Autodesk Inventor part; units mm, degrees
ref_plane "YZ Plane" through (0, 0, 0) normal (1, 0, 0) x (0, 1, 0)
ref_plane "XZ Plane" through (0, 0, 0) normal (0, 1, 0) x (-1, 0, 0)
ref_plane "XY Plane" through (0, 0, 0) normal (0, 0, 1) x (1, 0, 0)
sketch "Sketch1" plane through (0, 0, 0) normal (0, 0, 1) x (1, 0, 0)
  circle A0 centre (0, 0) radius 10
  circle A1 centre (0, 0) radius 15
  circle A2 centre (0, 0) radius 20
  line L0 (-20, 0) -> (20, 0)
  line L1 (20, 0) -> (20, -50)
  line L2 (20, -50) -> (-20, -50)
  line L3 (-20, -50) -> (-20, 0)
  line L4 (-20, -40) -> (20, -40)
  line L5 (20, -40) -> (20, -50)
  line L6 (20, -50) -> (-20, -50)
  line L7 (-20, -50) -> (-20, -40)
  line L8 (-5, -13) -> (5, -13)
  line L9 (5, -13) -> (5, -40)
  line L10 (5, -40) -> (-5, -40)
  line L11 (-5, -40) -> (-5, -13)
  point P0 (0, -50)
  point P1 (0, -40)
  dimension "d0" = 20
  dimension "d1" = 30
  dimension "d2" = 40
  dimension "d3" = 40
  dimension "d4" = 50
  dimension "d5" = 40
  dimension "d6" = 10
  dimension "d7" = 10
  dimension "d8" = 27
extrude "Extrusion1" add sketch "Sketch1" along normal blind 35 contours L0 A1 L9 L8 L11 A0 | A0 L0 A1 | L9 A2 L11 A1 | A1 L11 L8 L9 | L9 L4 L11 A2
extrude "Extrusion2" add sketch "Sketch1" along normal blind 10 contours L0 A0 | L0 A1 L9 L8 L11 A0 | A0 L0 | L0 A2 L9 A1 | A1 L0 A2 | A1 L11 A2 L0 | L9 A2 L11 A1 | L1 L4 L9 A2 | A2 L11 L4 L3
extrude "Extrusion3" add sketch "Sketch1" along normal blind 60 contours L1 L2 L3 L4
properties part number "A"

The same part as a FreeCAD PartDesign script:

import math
import FreeCAD as App
import Part
import Sketcher
Q = App.Units.Quantity

doc = App.newDocument("Part")
params = doc.addObject("Spreadsheet::Sheet", "Params")
for row, (alias, value) in enumerate([
    ("sketch1_diameter", "20 mm"),
    ("sketch1_radius", "15 mm"),
    ("sketch1_width", "10 mm"),
    ("pad1_length", "35 mm"),
    ("sketch2_radius", "20 mm"),
    ("sketch2_radius2", "10 mm"),
    ("sketch2_radius3", "15 mm"),
    ("sketch2_width", "10 mm"),
    ("sketch2_height", "40 mm"),
    ("pad2_length", "10 mm"),
    ("sketch3_width", "40 mm"),
    ("sketch3_height", "10 mm"),
    ("pad3_length", "60 mm"),
], start=1):
    params.set(f"A{row}", alias)
    params.set(f"B{row}", "=" + value)
    params.setAlias(f"B{row}", alias)

body = doc.addObject("PartDesign::Body", "Body")

sketch1 = body.newObject("Sketcher::SketchObject", "Sketch")
sketch1.AttachmentSupport = (doc.getObject("XY_Plane"), [""])
sketch1.MapMode = "FlatFace"
sketch1.addGeometry([
    Part.ArcOfCircle(Part.Circle(App.Vector(0, 0, 0), App.Vector(0, 0, 1), 15), math.radians(-70.528779), math.radians(250.528779)),
    Part.LineSegment(App.Vector(-5, -14.142136, 0), App.Vector(-5, -40, 0)),
    Part.LineSegment(App.Vector(-5, -40, 0), App.Vector(5, -40, 0)),
    Part.LineSegment(App.Vector(5, -40, 0), App.Vector(5, -14.142136, 0)),
    Part.Circle(App.Vector(0, 0, 0), App.Vector(0, 0, 1), 10),
], False)
sketch1.addConstraint([
    Sketcher.Constraint("Coincident", 0, 2, 1, 1),
    Sketcher.Constraint("Coincident", 1, 2, 2, 1),
    Sketcher.Constraint("Coincident", 2, 2, 3, 1),
    Sketcher.Constraint("Coincident", 3, 2, 0, 1),
    Sketcher.Constraint("Vertical", 1),
    Sketcher.Constraint("Horizontal", 2),
    Sketcher.Constraint("Vertical", 3),
    Sketcher.Constraint("Coincident", 0, 3, -1, 1),
    Sketcher.Constraint("Coincident", 4, 3, -1, 1),
    Sketcher.Constraint("Horizontal", 0, 2, 3, 2),
    Sketcher.Constraint("Diameter", 4, Q("20 mm")),
    Sketcher.Constraint("Radius", 0, Q("15 mm")),
    Sketcher.Constraint("DistanceX", 2, 1, 2, 2, Q("10 mm")),
    Sketcher.Constraint("DistanceY", 1, 2, -1, 1, Q("40 mm")),
])
sketch1.setExpression("Constraints[10]", "Params.sketch1_diameter")
sketch1.setExpression("Constraints[11]", "Params.sketch1_radius")
sketch1.setExpression("Constraints[12]", "Params.sketch1_width")
pad1 = body.newObject("PartDesign::Pad", "Pad")
pad1.Profile = sketch1
pad1.setExpression("Length", "Params.pad1_length")

sketch2 = body.newObject("Sketcher::SketchObject", "Sketch001")
sketch2.AttachmentSupport = (doc.getObject("XY_Plane"), [""])
sketch2.MapMode = "FlatFace"
sketch2.addGeometry([
    Part.ArcOfCircle(Part.Circle(App.Vector(0, 0, 0), App.Vector(0, 0, 1), 20), math.radians(0), math.radians(180)),
    Part.LineSegment(App.Vector(-20, 0, 0), App.Vector(-20, -40, 0)),
    Part.LineSegment(App.Vector(-20, -40, 0), App.Vector(-5, -40, 0)),
    Part.LineSegment(App.Vector(-5, -40, 0), App.Vector(-5, -19.364917, 0)),
    Part.ArcOfCircle(Part.Circle(App.Vector(0, 0, 0), App.Vector(0, 0, 1), 20), math.radians(-104.477512), math.radians(-75.522488)),
    Part.LineSegment(App.Vector(5, -19.364917, 0), App.Vector(5, -40, 0)),
    Part.LineSegment(App.Vector(5, -40, 0), App.Vector(20, -40, 0)),
    Part.LineSegment(App.Vector(20, -40, 0), App.Vector(20, 0, 0)),
    Part.ArcOfCircle(Part.Circle(App.Vector(0, 0, 0), App.Vector(0, 0, 1), 10), math.radians(0), math.radians(180)),
    Part.LineSegment(App.Vector(-10, 0, 0), App.Vector(-15, 0, 0)),
    Part.ArcOfCircle(Part.Circle(App.Vector(0, 0, 0), App.Vector(0, 0, 1), 15), math.radians(0), math.radians(180)),
    Part.LineSegment(App.Vector(15, 0, 0), App.Vector(10, 0, 0)),
    Part.LineSegment(App.Vector(5, -13, 0), App.Vector(5, -14.142136, 0)),
    Part.ArcOfCircle(Part.Circle(App.Vector(0, 0, 0), App.Vector(0, 0, 1), 15), math.radians(-109.471221), math.radians(-70.528779)),
    Part.LineSegment(App.Vector(-5, -14.142136, 0), App.Vector(-5, -13, 0)),
    Part.LineSegment(App.Vector(-5, -13, 0), App.Vector(5, -13, 0)),
], False)
sketch2.addConstraint([
    Sketcher.Constraint("Tangent", 0, 2, 1, 1),
    Sketcher.Constraint("Coincident", 1, 2, 2, 1),
    Sketcher.Constraint("Coincident", 2, 2, 3, 1),
    Sketcher.Constraint("Coincident", 3, 2, 4, 1),
    Sketcher.Constraint("Coincident", 4, 2, 5, 1),
    Sketcher.Constraint("Coincident", 5, 2, 6, 1),
    Sketcher.Constraint("Coincident", 6, 2, 7, 1),
    Sketcher.Constraint("Tangent", 7, 2, 0, 1),
    Sketcher.Constraint("Coincident", 8, 2, 9, 1),
    Sketcher.Constraint("Coincident", 9, 2, 10, 2),
    Sketcher.Constraint("Coincident", 10, 1, 11, 1),
    Sketcher.Constraint("Coincident", 11, 2, 8, 1),
    Sketcher.Constraint("Coincident", 12, 2, 13, 2),
    Sketcher.Constraint("Coincident", 13, 1, 14, 1),
    Sketcher.Constraint("Coincident", 14, 2, 15, 1),
    Sketcher.Constraint("Coincident", 15, 2, 12, 1),
    Sketcher.Constraint("Vertical", 1),
    Sketcher.Constraint("Horizontal", 2),
    Sketcher.Constraint("Vertical", 3),
    Sketcher.Constraint("Vertical", 5),
    Sketcher.Constraint("Horizontal", 6),
    Sketcher.Constraint("Vertical", 7),
    Sketcher.Constraint("Horizontal", 9),
    Sketcher.Constraint("Horizontal", 11),
    Sketcher.Constraint("Vertical", 12),
    Sketcher.Constraint("Vertical", 14),
    Sketcher.Constraint("Horizontal", 15),
    Sketcher.Constraint("Coincident", 0, 3, -1, 1),
    Sketcher.Constraint("Coincident", 4, 3, -1, 1),
    Sketcher.Constraint("Coincident", 8, 3, -1, 1),
    Sketcher.Constraint("Coincident", 10, 3, -1, 1),
    Sketcher.Constraint("Coincident", 13, 3, -1, 1),
    Sketcher.Constraint("Equal", 0, 4),
    Sketcher.Constraint("Equal", 10, 13),
    Sketcher.Constraint("Symmetric", 2, 2, 5, 2, -2),
    Sketcher.Constraint("PointOnObject", 8, 2, -1),
    Sketcher.Constraint("PointOnObject", 10, 1, -1),
    Sketcher.Constraint("Horizontal", 12, 2, 13, 1),
    Sketcher.Constraint("Vertical", 5, 2, 12, 2),
    Sketcher.Constraint("Radius", 0, Q("20 mm")),
    Sketcher.Constraint("Radius", 8, Q("10 mm")),
    Sketcher.Constraint("Radius", 10, Q("15 mm")),
    Sketcher.Constraint("DistanceX", 15, 1, 15, 2, Q("10 mm")),
    Sketcher.Constraint("DistanceY", 1, 2, 1, 1, Q("40 mm")),
    Sketcher.Constraint("DistanceY", 14, 2, -1, 1, Q("13 mm")),
])
sketch2.setExpression("Constraints[39]", "Params.sketch2_radius")
sketch2.setExpression("Constraints[40]", "Params.sketch2_radius2")
sketch2.setExpression("Constraints[41]", "Params.sketch2_radius3")
sketch2.setExpression("Constraints[42]", "Params.sketch2_width")
sketch2.setExpression("Constraints[43]", "Params.sketch2_height")
pad2 = body.newObject("PartDesign::Pad", "Pad001")
pad2.Profile = sketch2
pad2.setExpression("Length", "Params.pad2_length")

sketch3 = body.newObject("Sketcher::SketchObject", "Sketch002")
sketch3.AttachmentSupport = (doc.getObject("XY_Plane"), [""])
sketch3.MapMode = "FlatFace"
sketch3.addGeometry([
    Part.LineSegment(App.Vector(20, -50, 0), App.Vector(20, -40, 0)),
    Part.LineSegment(App.Vector(20, -40, 0), App.Vector(-20, -40, 0)),
    Part.LineSegment(App.Vector(-20, -40, 0), App.Vector(-20, -50, 0)),
    Part.LineSegment(App.Vector(-20, -50, 0), App.Vector(20, -50, 0)),
], False)
sketch3.addConstraint([
    Sketcher.Constraint("Coincident", 0, 2, 1, 1),
    Sketcher.Constraint("Coincident", 1, 2, 2, 1),
    Sketcher.Constraint("Coincident", 2, 2, 3, 1),
    Sketcher.Constraint("Coincident", 3, 2, 0, 1),
    Sketcher.Constraint("Vertical", 0),
    Sketcher.Constraint("Horizontal", 1),
    Sketcher.Constraint("Vertical", 2),
    Sketcher.Constraint("Horizontal", 3),
    Sketcher.Constraint("DistanceX", 1, 2, 1, 1, Q("40 mm")),
    Sketcher.Constraint("DistanceY", 0, 1, 0, 2, Q("10 mm")),
    Sketcher.Constraint("DistanceX", -1, 1, 0, 2, Q("20 mm")),
    Sketcher.Constraint("DistanceY", 0, 2, -1, 1, Q("40 mm")),
])
sketch3.setExpression("Constraints[8]", "Params.sketch3_width")
sketch3.setExpression("Constraints[9]", "Params.sketch3_height")
pad3 = body.newObject("PartDesign::Pad", "Pad002")
pad3.Profile = sketch3
pad3.setExpression("Length", "Params.pad3_length")

doc.recompute()
